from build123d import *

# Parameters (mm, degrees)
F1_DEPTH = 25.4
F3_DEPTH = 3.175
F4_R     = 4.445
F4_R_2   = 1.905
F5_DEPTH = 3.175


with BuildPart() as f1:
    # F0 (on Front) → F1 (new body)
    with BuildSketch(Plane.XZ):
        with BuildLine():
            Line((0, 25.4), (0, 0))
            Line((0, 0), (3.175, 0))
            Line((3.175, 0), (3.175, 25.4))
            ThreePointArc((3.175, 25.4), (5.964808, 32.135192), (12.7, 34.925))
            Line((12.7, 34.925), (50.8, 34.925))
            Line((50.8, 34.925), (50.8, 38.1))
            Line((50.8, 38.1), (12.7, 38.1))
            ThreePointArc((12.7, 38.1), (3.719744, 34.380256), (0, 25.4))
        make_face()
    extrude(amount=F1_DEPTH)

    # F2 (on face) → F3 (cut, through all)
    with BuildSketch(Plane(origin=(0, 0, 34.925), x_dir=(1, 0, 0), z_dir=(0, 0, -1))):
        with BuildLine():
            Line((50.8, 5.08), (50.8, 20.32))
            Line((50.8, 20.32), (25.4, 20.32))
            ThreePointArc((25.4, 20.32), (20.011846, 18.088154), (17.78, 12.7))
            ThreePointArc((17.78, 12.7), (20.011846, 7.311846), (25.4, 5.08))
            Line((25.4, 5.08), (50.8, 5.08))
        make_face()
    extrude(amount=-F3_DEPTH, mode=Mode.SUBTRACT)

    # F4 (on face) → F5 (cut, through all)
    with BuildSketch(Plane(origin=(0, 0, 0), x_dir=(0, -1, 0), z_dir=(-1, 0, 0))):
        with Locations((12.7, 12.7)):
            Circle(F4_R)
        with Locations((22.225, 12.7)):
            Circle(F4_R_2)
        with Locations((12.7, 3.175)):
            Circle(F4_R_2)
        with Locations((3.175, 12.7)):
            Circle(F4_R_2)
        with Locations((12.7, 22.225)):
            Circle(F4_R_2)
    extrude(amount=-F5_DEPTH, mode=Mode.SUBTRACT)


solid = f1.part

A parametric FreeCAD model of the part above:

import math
import FreeCAD as App
import Part
import Sketcher
from FreeCAD import Vector
Q = App.Units.Quantity

doc = App.newDocument("Part")
params = doc.addObject("Spreadsheet::Sheet", "Params")
for row, (alias, value) in enumerate([
    ("sketch1_radius", "0.5 in"),
    ("sketch1_height", "1 in"),
    ("sketch1_width", "1.5 in"),
    ("sketch1_radius2", "0.375 in"),
    ("pad1_length", "1 in"),
    ("sketch2_radius", "0.3 in"),
    ("sketch2_width", "1 in"),
    ("sketch3_diameter", "0.35 in"),
    ("sketch3_diameter2", "0.15 in"),
], start=1):
    params.set(f"A{row}", alias)
    params.set(f"B{row}", "=" + value)
    params.setAlias(f"B{row}", alias)

body = doc.addObject("PartDesign::Body", "Body")

# Sketch on XZ plane
sketch1 = doc.addObject("Sketcher::SketchObject", "Sketch")
body.addObject(sketch1)
sketch1.AttachmentSupport = (doc.XZ_Plane, [""])
sketch1.MapMode = "FlatFace"
sketch1.addGeometry(Part.LineSegment(Vector(0, 25.4, 0), Vector(0, 0, 0)), False)
sketch1.addGeometry(Part.LineSegment(Vector(0, 0, 0), Vector(3.175, 0, 0)), False)
sketch1.addGeometry(Part.LineSegment(Vector(3.175, 0, 0), Vector(3.175, 25.4, 0)), False)
sketch1.addGeometry(Part.ArcOfCircle(Part.Circle(Vector(12.7, 25.4, 0), Vector(0, 0, 1), 9.525), math.radians(90.000002), math.radians(179.999998)), False)
sketch1.addGeometry(Part.LineSegment(Vector(12.7, 34.925, 0), Vector(50.8, 34.925, 0)), False)
sketch1.addGeometry(Part.LineSegment(Vector(50.8, 34.925, 0), Vector(50.8, 38.1, 0)), False)
sketch1.addGeometry(Part.LineSegment(Vector(50.8, 38.1, 0), Vector(12.7, 38.1, 0)), False)
sketch1.addGeometry(Part.ArcOfCircle(Part.Circle(Vector(12.7, 25.4, 0), Vector(0, 0, 1), 12.7), math.radians(90.000002), math.radians(179.999998)), False)
sketch1.addConstraint(Sketcher.Constraint("Coincident", 0, 2, 1, 1))
sketch1.addConstraint(Sketcher.Constraint("Coincident", 1, 2, 2, 1))
sketch1.addConstraint(Sketcher.Constraint("Tangent", 2, 2, 3, 2))
sketch1.addConstraint(Sketcher.Constraint("Tangent", 3, 1, 4, 1))
sketch1.addConstraint(Sketcher.Constraint("Coincident", 4, 2, 5, 1))
sketch1.addConstraint(Sketcher.Constraint("Coincident", 5, 2, 6, 1))
sketch1.addConstraint(Sketcher.Constraint("Tangent", 6, 2, 7, 1))
sketch1.addConstraint(Sketcher.Constraint("Tangent", 7, 2, 0, 1))
sketch1.addConstraint(Sketcher.Constraint("Vertical", 0))
sketch1.addConstraint(Sketcher.Constraint("Horizontal", 1))
sketch1.addConstraint(Sketcher.Constraint("Vertical", 2))
sketch1.addConstraint(Sketcher.Constraint("Horizontal", 4))
sketch1.addConstraint(Sketcher.Constraint("Vertical", 5))
sketch1.addConstraint(Sketcher.Constraint("Horizontal", 6))
sketch1.addConstraint(Sketcher.Constraint("Coincident", 0, 2, -1, 1))
sketch1.addConstraint(Sketcher.Constraint("Coincident", 7, 3, 3, 3))
sketch1.addConstraint(Sketcher.Constraint("Radius", 7, Q("0.5 in")))
sketch1.addConstraint(Sketcher.Constraint("DistanceY", 0, 2, 0, 1, Q("1 in")))
sketch1.addConstraint(Sketcher.Constraint("DistanceX", 4, 1, 4, 2, Q("1.5 in")))
sketch1.addConstraint(Sketcher.Constraint("Radius", 3, Q("0.375 in")))
sketch1.setExpression("Constraints[16]", "Params.sketch1_radius")
sketch1.setExpression("Constraints[17]", "Params.sketch1_height")
sketch1.setExpression("Constraints[18]", "Params.sketch1_width")
sketch1.setExpression("Constraints[19]", "Params.sketch1_radius2")
pad1 = doc.addObject("PartDesign::Pad", "Pad")
body.addObject(pad1)
pad1.Profile = sketch1
pad1.setExpression("Length", "Params.pad1_length")

# Sketch on XY plane
sketch2 = doc.addObject("Sketcher::SketchObject", "Sketch001")
body.addObject(sketch2)
sketch2.AttachmentSupport = (doc.XY_Plane, [""])
sketch2.MapMode = "FlatFace"
sketch2.AttachmentOffset = App.Placement(Vector(0, 0, 1.375 * 25.4), App.Rotation())
sketch2.addGeometry(Part.LineSegment(Vector(50.8, -5.08, 0), Vector(50.8, -20.32, 0)), False)
sketch2.addGeometry(Part.LineSegment(Vector(50.8, -20.32, 0), Vector(25.4, -20.32, 0)), False)
sketch2.addGeometry(Part.ArcOfCircle(Part.Circle(Vector(25.399999, -12.700001, 0), Vector(0, 0, 1), 7.619999), math.radians(179.999992), math.radians(270.000008)), False)
sketch2.addGeometry(Part.ArcOfCircle(Part.Circle(Vector(25.399999, -12.699999, 0), Vector(0, 0, 1), 7.619999), math.radians(89.999992), math.radians(180.000008)), False)
sketch2.addGeometry(Part.LineSegment(Vector(25.4, -5.08, 0), Vector(50.8, -5.08, 0)), False)
sketch2.addConstraint(Sketcher.Constraint("Coincident", 0, 2, 1, 1))
sketch2.addConstraint(Sketcher.Constraint("Tangent", 1, 2, 2, 2))
sketch2.addConstraint(Sketcher.Constraint("Tangent", 2, 1, 3, 2))
sketch2.addConstraint(Sketcher.Constraint("Tangent", 3, 1, 4, 1))
sketch2.addConstraint(Sketcher.Constraint("Coincident", 4, 2, 0, 1))
sketch2.addConstraint(Sketcher.Constraint("Vertical", 0))
sketch2.addConstraint(Sketcher.Constraint("Horizontal", 1))
sketch2.addConstraint(Sketcher.Constraint("Horizontal", 4))
sketch2.addConstraint(Sketcher.Constraint("Equal", 2, 3))
sketch2.addConstraint(Sketcher.Constraint("Horizontal", 3, 3, 2, 1))
sketch2.addConstraint(Sketcher.Constraint("Radius", 2, Q("0.3 in")))
sketch2.addConstraint(Sketcher.Constraint("DistanceX", 1, 2, 1, 1, Q("1 in")))
sketch2.addConstraint(Sketcher.Constraint("DistanceX", -1, 1, 2, 3, Q("1 in")))
sketch2.addConstraint(Sketcher.Constraint("DistanceY", 2, 3, -1, 1, Q("0.5 in")))
sketch2.setExpression("Constraints[10]", "Params.sketch2_radius")
sketch2.setExpression("Constraints[11]", "Params.sketch2_width")
pocket1 = doc.addObject("PartDesign::Pocket", "Pocket")
body.addObject(pocket1)
pocket1.Profile = sketch2
pocket1.Type = "ThroughAll"
pocket1.Reversed = True

# Sketch on YZ plane
sketch3 = doc.addObject("Sketcher::SketchObject", "Sketch002")
body.addObject(sketch3)
sketch3.AttachmentSupport = (doc.YZ_Plane, [""])
sketch3.MapMode = "FlatFace"
sketch3.addGeometry(Part.Circle(Vector(-12.7, 12.7, 0), Vector(0, 0, 1), 4.445), False)
sketch3.addGeometry(Part.Circle(Vector(-22.225, 12.7, 0), Vector(0, 0, 1), 1.905), False)
sketch3.addGeometry(Part.Circle(Vector(-12.7, 3.175, 0), Vector(0, 0, 1), 1.905), False)
sketch3.addGeometry(Part.Circle(Vector(-3.175, 12.7, 0), Vector(0, 0, 1), 1.905), False)
sketch3.addGeometry(Part.Circle(Vector(-12.7, 22.225, 0), Vector(0, 0, 1), 1.905), False)
sketch3.addConstraint(Sketcher.Constraint("Equal", 1, 2))
sketch3.addConstraint(Sketcher.Constraint("Equal", 2, 3))
sketch3.addConstraint(Sketcher.Constraint("Equal", 3, 4))
sketch3.addConstraint(Sketcher.Constraint("Horizontal", 0, 3, 1, 3))
sketch3.addConstraint(Sketcher.Constraint("Horizontal", 1, 3, 3, 3))
sketch3.addConstraint(Sketcher.Constraint("Vertical", 0, 3, 2, 3))
sketch3.addConstraint(Sketcher.Constraint("Vertical", 2, 3, 4, 3))
sketch3.addConstraint(Sketcher.Constraint("Diameter", 0, Q("0.35 in")))
sketch3.addConstraint(Sketcher.Constraint("Diameter", 1, Q("0.15 in")))
sketch3.addConstraint(Sketcher.Constraint("DistanceX", 0, 3, -1, 1, Q("0.5 in")))
sketch3.addConstraint(Sketcher.Constraint("DistanceY", -1, 1, 0, 3, Q("0.5 in")))
sketch3.addConstraint(Sketcher.Constraint("DistanceX", 1, 3, 3, 3, Q("0.75 in")))
sketch3.addConstraint(Sketcher.Constraint("DistanceY", 2, 3, 4, 3, Q("0.75 in")))
sketch3.addConstraint(Sketcher.Constraint("DistanceX", 1, 3, -1, 1, Q("0.875 in")))
sketch3.addConstraint(Sketcher.Constraint("DistanceY", -1, 1, 2, 3, Q("0.125 in")))
sketch3.setExpression("Constraints[7]", "Params.sketch3_diameter")
sketch3.setExpression("Constraints[8]", "Params.sketch3_diameter2")
pocket2 = doc.addObject("PartDesign::Pocket", "Pocket001")
body.addObject(pocket2)
pocket2.Profile = sketch3
pocket2.Type = "ThroughAll"
pocket2.Reversed = True

doc.recompute()
